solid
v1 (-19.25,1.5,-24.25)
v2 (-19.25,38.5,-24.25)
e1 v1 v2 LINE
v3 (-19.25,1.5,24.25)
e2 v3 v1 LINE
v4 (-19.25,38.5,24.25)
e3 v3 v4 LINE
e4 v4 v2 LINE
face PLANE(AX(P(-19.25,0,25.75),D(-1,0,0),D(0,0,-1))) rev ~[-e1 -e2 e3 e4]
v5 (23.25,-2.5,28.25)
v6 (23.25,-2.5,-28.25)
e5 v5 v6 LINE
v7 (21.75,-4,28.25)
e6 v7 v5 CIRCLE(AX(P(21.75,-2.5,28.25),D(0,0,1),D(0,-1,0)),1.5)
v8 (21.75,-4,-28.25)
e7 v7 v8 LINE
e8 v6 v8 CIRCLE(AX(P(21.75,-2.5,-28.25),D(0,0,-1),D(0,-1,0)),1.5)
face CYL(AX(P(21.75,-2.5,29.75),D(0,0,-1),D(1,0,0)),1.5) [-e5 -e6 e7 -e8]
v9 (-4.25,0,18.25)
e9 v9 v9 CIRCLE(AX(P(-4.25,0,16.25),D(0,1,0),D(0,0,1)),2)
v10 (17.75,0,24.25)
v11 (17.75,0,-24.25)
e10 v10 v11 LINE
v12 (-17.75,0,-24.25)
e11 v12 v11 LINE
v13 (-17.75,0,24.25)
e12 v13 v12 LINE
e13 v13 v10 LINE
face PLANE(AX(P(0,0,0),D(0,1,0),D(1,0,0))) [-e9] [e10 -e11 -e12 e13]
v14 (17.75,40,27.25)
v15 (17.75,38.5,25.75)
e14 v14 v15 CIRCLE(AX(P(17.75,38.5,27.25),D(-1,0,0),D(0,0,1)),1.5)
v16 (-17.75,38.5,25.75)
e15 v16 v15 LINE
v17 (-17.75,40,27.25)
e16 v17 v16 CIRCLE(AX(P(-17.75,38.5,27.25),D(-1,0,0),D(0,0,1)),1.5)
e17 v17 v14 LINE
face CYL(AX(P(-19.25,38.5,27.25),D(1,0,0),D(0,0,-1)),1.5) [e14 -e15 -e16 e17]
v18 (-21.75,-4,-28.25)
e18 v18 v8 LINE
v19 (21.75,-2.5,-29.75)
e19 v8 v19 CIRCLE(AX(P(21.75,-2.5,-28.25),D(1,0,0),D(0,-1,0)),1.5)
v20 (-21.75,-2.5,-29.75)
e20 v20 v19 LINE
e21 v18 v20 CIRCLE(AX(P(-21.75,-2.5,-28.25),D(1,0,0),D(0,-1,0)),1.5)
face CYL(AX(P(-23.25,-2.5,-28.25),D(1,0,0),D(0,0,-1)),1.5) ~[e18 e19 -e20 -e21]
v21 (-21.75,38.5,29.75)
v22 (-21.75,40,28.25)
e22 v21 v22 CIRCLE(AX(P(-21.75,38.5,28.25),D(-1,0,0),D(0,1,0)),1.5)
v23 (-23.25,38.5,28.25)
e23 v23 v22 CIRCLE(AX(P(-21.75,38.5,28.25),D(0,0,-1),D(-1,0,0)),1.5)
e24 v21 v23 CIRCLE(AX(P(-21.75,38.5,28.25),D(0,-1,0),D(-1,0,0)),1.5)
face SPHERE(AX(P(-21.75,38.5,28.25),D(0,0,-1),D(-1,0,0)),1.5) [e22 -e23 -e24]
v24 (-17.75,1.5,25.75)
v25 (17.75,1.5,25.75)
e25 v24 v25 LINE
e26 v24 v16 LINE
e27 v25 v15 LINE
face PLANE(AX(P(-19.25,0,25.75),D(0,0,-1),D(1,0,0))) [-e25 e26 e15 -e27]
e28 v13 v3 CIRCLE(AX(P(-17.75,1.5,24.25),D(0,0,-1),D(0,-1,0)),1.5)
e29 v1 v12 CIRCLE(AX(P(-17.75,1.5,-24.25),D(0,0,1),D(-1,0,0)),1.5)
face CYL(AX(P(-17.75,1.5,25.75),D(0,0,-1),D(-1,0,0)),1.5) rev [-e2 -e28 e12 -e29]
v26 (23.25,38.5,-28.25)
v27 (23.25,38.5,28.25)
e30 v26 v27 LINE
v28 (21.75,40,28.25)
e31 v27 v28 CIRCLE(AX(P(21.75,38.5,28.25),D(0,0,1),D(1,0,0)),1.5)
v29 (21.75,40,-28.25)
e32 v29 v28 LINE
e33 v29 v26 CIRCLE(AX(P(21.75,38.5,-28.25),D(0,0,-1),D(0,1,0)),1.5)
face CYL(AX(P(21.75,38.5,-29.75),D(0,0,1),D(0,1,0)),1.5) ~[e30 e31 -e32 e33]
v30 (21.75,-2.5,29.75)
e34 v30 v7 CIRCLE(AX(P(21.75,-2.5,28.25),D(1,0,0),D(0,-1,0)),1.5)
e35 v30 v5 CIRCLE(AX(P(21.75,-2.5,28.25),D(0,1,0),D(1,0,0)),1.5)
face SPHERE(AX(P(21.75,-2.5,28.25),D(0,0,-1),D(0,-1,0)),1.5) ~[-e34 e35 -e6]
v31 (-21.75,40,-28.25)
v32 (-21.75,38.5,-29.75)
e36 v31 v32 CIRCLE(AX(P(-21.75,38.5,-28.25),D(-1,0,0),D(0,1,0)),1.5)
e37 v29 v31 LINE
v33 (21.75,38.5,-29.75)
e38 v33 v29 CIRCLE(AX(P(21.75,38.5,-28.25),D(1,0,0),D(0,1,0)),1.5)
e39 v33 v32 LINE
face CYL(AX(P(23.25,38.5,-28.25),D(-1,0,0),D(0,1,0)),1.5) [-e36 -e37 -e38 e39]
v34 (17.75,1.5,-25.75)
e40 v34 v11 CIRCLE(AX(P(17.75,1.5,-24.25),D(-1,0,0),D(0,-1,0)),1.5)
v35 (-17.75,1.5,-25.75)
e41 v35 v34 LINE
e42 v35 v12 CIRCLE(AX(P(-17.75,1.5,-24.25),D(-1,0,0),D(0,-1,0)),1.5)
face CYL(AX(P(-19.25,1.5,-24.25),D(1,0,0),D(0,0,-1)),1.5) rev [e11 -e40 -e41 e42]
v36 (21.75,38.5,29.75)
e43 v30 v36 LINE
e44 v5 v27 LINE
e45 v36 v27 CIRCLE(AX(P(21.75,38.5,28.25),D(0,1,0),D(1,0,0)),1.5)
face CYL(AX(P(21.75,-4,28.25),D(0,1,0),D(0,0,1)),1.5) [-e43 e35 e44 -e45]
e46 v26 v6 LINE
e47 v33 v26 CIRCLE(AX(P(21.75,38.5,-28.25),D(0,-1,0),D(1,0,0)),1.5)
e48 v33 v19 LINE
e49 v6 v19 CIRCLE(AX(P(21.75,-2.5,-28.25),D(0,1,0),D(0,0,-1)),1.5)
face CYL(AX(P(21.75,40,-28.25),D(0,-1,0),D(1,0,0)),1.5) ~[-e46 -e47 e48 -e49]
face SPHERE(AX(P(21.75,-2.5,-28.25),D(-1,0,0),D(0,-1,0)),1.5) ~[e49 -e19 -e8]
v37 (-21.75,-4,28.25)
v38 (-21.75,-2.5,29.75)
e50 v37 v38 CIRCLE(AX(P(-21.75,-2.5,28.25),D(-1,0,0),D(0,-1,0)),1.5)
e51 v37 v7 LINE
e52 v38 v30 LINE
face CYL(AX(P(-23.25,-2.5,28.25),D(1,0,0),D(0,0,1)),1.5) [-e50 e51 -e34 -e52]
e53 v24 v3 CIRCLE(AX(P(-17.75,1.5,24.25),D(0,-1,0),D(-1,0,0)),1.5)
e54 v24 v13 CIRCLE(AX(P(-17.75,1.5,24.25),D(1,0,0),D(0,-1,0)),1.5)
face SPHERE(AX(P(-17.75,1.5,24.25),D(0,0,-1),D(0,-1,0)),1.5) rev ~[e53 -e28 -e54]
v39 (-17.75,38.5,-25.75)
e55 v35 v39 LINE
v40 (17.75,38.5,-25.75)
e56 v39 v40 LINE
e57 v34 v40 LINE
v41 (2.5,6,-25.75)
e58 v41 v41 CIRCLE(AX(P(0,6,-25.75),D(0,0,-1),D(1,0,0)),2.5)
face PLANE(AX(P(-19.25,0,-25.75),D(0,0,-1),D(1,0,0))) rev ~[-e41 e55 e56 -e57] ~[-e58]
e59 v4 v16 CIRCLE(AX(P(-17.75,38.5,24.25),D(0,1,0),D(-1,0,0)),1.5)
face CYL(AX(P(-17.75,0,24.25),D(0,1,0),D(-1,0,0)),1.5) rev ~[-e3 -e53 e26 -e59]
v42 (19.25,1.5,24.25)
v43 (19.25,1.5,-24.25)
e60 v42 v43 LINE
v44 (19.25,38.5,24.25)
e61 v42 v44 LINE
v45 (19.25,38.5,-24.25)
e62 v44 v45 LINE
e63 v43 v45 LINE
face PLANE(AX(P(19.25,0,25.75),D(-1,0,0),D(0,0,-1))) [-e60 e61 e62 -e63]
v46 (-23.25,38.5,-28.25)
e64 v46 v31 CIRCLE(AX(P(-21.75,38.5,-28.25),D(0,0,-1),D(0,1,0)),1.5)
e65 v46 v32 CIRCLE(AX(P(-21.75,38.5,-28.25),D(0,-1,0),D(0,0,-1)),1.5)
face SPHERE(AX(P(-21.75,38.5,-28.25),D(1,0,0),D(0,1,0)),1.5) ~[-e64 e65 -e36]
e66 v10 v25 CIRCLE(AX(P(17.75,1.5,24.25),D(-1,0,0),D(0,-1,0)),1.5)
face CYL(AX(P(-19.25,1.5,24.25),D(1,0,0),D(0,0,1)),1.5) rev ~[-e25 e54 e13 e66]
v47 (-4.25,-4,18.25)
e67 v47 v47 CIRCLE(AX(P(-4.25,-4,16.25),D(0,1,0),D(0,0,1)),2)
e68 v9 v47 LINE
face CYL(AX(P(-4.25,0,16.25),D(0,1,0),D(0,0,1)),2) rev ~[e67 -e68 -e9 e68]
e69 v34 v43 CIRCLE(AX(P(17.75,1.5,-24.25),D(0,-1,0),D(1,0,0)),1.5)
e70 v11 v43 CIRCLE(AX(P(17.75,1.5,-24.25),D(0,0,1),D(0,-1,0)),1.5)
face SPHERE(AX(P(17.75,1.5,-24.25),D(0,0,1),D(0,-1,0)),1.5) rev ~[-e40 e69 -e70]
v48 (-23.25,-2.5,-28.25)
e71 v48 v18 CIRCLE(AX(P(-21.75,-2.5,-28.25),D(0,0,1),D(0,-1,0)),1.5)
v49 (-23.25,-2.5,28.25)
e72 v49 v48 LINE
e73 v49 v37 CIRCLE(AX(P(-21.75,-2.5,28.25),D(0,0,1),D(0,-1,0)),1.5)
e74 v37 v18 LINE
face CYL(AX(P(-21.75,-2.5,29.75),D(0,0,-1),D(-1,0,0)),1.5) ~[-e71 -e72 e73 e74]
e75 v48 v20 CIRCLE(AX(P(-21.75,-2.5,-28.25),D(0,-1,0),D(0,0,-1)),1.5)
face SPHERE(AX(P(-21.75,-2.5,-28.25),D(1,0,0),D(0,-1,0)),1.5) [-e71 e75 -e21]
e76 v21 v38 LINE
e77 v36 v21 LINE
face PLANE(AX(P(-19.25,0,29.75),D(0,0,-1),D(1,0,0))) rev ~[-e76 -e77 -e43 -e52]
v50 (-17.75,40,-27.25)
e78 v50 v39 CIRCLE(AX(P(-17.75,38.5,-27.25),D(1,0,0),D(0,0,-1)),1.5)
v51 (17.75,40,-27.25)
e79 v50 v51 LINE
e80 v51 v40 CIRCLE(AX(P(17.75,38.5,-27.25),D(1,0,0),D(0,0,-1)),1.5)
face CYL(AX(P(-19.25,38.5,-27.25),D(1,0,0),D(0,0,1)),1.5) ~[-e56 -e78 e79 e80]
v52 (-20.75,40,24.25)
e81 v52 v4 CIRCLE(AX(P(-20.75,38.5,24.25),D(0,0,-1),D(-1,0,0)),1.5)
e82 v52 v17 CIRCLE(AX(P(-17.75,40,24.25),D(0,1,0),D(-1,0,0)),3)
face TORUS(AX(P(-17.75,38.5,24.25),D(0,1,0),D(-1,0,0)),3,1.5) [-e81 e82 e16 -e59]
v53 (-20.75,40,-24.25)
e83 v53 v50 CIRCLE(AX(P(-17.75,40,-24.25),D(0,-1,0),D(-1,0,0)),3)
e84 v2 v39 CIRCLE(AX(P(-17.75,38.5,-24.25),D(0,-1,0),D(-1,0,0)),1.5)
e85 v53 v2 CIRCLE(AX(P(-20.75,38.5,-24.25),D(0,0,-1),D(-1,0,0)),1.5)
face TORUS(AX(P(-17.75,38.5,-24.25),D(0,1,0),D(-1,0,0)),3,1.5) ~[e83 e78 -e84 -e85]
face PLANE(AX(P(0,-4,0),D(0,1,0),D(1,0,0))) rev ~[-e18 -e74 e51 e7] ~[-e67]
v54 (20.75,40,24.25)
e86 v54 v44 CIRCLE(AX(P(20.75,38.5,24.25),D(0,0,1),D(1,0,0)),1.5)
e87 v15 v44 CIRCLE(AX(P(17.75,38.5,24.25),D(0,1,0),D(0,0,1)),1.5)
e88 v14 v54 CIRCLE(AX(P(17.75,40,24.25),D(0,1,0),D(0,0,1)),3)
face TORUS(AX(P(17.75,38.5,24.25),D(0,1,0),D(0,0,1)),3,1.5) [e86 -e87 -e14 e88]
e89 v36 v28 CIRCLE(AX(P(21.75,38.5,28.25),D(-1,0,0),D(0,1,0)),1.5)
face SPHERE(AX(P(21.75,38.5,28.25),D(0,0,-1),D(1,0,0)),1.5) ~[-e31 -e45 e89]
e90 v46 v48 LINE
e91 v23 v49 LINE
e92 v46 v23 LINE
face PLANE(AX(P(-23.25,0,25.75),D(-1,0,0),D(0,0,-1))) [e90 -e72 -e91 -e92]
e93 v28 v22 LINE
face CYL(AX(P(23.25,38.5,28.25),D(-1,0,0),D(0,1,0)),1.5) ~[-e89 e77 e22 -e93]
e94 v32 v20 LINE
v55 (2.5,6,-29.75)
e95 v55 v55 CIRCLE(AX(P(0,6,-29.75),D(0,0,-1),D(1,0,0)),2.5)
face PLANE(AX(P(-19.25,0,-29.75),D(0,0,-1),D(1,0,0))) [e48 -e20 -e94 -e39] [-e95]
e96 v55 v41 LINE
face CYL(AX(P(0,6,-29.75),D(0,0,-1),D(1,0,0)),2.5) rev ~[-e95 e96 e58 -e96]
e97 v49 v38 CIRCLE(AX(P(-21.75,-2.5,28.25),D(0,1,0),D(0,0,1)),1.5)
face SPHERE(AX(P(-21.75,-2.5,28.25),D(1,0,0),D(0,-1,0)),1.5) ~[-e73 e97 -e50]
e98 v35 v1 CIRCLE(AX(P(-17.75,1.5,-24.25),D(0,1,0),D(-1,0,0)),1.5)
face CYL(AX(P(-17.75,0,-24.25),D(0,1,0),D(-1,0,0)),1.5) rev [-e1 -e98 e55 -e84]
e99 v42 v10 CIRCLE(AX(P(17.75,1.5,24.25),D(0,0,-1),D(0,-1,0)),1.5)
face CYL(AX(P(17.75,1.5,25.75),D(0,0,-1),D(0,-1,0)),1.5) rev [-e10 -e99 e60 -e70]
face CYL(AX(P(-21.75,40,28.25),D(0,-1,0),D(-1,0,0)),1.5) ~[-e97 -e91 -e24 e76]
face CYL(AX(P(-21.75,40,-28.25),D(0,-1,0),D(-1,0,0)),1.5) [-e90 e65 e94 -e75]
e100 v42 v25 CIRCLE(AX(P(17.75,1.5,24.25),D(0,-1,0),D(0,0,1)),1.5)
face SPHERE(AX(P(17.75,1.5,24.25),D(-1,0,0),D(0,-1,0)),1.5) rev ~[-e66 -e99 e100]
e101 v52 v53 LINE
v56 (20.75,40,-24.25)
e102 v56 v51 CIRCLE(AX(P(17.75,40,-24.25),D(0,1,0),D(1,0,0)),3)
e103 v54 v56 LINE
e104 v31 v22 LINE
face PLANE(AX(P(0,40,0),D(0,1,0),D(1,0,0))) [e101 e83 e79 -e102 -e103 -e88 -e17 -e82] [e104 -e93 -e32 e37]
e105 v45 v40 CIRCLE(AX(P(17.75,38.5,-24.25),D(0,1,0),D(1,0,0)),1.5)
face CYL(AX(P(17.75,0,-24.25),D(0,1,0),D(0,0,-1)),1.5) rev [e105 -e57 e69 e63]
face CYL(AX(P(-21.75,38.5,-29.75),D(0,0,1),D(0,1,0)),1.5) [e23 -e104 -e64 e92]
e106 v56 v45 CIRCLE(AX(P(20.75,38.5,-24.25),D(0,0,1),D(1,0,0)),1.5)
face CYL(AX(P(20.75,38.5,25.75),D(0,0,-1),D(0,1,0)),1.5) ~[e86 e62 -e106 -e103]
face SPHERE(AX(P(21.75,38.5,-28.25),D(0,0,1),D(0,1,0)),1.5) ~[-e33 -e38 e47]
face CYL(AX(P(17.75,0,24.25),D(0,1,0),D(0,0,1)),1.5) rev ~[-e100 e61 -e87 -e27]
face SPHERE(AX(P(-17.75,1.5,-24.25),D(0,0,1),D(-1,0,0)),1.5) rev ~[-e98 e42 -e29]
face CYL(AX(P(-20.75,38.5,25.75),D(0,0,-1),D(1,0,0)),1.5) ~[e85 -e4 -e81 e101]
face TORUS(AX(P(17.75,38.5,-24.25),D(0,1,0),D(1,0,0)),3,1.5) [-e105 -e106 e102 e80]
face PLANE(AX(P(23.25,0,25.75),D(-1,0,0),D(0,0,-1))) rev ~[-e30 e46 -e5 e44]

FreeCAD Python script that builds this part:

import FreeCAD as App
import Part
import Sketcher
from FreeCAD import Vector
Q = App.Units.Quantity


def edges_at(feature, points):
    """Names of the edges that pass closest to the given points."""
    edges = feature.Shape.Edges
    near = lambda p: min(range(len(edges)), key=lambda i: edges[i].distToShape(Part.Vertex(*p))[0])
    return sorted({f"Edge{near(p) + 1}" for p in points})


def faces_at(feature, points):
    """Names of the faces that lie closest to the given points."""
    faces = feature.Shape.Faces
    near = lambda p: min(range(len(faces)), key=lambda i: faces[i].distToShape(Part.Vertex(*p))[0])
    return sorted({f"Face{near(p) + 1}" for p in points})


def add_polygon(sketch, points):
    """Adds a closed chain of lines whose ends are joined by coincident constraints."""
    first, n = sketch.GeometryCount, len(points)
    for a, b in zip(points, points[1:] + points[:1]):
        sketch.addGeometry(Part.LineSegment(App.Vector(*a, 0), App.Vector(*b, 0)), False)
    for i in range(n):
        sketch.addConstraint(Sketcher.Constraint("Coincident", first + i, 2, first + (i + 1) % n, 1))

doc = App.newDocument("Part")
body = doc.addObject("PartDesign::Body", "Body")

sketch1 = body.newObject("Sketcher::SketchObject", "Sketch")
sketch1.AttachmentSupport = (doc.getObject("XZ_Plane"), [""])
sketch1.MapMode = "FlatFace"
add_polygon(sketch1, [(-19.25, -25.75), (-19.25, 25.75), (19.25, 25.75), (19.25, -25.75)])
sketch1.addConstraint([
    Sketcher.Constraint("Vertical", 0),
    Sketcher.Constraint("Horizontal", 1),
    Sketcher.Constraint("Vertical", 2),
    Sketcher.Constraint("Horizontal", 3),
    Sketcher.Constraint("Symmetric", 0, 2, 2, 2, -1, 1),
    Sketcher.Constraint("DistanceX", 1, 1, 1, 2, Q("38.5 mm")),
    Sketcher.Constraint("DistanceY", 0, 1, 0, 2, Q("51.5 mm")),
])
pad1 = body.newObject("PartDesign::Pad", "Pad")
pad1.Profile = sketch1
pad1.Length = 40
pad1.Reversed = True
doc.recompute()

thickness = body.newObject("PartDesign::Thickness", "Thickness")
thickness.Base = (pad1, faces_at(pad1, [(0, 40, 0)]))
thickness.Value = 4
thickness.Reversed = False
thickness.Join = "Intersection"

sketch2 = body.newObject("Sketcher::SketchObject", "Sketch001")
sketch2.AttachmentSupport = (doc.getObject("XY_Plane"), [""])
sketch2.MapMode = "FlatFace"
sketch2.AttachmentOffset = App.Placement(Vector(0, 0, -29.75), App.Rotation())
sketch2.addGeometry(Part.Circle(Vector(0, 6, 0), Vector(0, 0, 1), 2.5), False)
sketch2.addConstraint([
    Sketcher.Constraint("PointOnObject", 0, 3, -2),
    Sketcher.Constraint("Diameter", 0, Q("5 mm")),
    Sketcher.Constraint("DistanceY", -1, 1, 0, 3, Q("6 mm")),
])
pocket1 = body.newObject("PartDesign::Pocket", "Pocket")
pocket1.Profile = sketch2
pocket1.Length = 4
pocket1.Reversed = True
doc.recompute()

fillet = body.newObject("PartDesign::Fillet", "Fillet")
fillet.Base = (pocket1, edges_at(pocket1, [
    (23.25, 40, 0),
    (0, 40, -29.75),
    (-19.25, 0, 0),
    (-19.25, 20, -25.75),
    (0, 0, 25.75),
    (-19.25, 20, 25.75),
    (19.25, 0, 0),
    (19.25, 20, 25.75),
    (0, 0, -25.75),
    (19.25, 20, -25.75),
    (-19.25, 40, 0),
    (0, 40, 25.75),
    (19.25, 40, 0),
    (0, 40, -25.75),
    (-23.25, 40, 0),
    (0, -4, -29.75),
    (23.25, -4, 0),
    (0, -4, 29.75),
    (-23.25, -4, 0),
    (-23.25, 18, -29.75),
    (23.25, 18, -29.75),
    (23.25, 18, 29.75),
    (-23.25, 18, 29.75),
    (0, 40, 29.75),
]))
fillet.Radius = 1.5

sketch3 = body.newObject("Sketcher::SketchObject", "Sketch002")
sketch3.AttachmentSupport = (doc.getObject("XZ_Plane"), [""])
sketch3.MapMode = "FlatFace"
sketch3.addGeometry(Part.Circle(Vector(-4.25, 16.25, 0), Vector(0, 0, 1), 2), False)
sketch3.addConstraint([
    Sketcher.Constraint("Diameter", 0, Q("4 mm")),
    Sketcher.Constraint("DistanceX", 0, 3, -1, 1, Q("4.25 mm")),
    Sketcher.Constraint("DistanceY", -1, 1, 0, 3, Q("16.25 mm")),
])
pocket2 = body.newObject("PartDesign::Pocket", "Pocket001")
pocket2.Profile = sketch3
pocket2.Type = "ThroughAll"
pocket2.Reversed = True

doc.recompute()
